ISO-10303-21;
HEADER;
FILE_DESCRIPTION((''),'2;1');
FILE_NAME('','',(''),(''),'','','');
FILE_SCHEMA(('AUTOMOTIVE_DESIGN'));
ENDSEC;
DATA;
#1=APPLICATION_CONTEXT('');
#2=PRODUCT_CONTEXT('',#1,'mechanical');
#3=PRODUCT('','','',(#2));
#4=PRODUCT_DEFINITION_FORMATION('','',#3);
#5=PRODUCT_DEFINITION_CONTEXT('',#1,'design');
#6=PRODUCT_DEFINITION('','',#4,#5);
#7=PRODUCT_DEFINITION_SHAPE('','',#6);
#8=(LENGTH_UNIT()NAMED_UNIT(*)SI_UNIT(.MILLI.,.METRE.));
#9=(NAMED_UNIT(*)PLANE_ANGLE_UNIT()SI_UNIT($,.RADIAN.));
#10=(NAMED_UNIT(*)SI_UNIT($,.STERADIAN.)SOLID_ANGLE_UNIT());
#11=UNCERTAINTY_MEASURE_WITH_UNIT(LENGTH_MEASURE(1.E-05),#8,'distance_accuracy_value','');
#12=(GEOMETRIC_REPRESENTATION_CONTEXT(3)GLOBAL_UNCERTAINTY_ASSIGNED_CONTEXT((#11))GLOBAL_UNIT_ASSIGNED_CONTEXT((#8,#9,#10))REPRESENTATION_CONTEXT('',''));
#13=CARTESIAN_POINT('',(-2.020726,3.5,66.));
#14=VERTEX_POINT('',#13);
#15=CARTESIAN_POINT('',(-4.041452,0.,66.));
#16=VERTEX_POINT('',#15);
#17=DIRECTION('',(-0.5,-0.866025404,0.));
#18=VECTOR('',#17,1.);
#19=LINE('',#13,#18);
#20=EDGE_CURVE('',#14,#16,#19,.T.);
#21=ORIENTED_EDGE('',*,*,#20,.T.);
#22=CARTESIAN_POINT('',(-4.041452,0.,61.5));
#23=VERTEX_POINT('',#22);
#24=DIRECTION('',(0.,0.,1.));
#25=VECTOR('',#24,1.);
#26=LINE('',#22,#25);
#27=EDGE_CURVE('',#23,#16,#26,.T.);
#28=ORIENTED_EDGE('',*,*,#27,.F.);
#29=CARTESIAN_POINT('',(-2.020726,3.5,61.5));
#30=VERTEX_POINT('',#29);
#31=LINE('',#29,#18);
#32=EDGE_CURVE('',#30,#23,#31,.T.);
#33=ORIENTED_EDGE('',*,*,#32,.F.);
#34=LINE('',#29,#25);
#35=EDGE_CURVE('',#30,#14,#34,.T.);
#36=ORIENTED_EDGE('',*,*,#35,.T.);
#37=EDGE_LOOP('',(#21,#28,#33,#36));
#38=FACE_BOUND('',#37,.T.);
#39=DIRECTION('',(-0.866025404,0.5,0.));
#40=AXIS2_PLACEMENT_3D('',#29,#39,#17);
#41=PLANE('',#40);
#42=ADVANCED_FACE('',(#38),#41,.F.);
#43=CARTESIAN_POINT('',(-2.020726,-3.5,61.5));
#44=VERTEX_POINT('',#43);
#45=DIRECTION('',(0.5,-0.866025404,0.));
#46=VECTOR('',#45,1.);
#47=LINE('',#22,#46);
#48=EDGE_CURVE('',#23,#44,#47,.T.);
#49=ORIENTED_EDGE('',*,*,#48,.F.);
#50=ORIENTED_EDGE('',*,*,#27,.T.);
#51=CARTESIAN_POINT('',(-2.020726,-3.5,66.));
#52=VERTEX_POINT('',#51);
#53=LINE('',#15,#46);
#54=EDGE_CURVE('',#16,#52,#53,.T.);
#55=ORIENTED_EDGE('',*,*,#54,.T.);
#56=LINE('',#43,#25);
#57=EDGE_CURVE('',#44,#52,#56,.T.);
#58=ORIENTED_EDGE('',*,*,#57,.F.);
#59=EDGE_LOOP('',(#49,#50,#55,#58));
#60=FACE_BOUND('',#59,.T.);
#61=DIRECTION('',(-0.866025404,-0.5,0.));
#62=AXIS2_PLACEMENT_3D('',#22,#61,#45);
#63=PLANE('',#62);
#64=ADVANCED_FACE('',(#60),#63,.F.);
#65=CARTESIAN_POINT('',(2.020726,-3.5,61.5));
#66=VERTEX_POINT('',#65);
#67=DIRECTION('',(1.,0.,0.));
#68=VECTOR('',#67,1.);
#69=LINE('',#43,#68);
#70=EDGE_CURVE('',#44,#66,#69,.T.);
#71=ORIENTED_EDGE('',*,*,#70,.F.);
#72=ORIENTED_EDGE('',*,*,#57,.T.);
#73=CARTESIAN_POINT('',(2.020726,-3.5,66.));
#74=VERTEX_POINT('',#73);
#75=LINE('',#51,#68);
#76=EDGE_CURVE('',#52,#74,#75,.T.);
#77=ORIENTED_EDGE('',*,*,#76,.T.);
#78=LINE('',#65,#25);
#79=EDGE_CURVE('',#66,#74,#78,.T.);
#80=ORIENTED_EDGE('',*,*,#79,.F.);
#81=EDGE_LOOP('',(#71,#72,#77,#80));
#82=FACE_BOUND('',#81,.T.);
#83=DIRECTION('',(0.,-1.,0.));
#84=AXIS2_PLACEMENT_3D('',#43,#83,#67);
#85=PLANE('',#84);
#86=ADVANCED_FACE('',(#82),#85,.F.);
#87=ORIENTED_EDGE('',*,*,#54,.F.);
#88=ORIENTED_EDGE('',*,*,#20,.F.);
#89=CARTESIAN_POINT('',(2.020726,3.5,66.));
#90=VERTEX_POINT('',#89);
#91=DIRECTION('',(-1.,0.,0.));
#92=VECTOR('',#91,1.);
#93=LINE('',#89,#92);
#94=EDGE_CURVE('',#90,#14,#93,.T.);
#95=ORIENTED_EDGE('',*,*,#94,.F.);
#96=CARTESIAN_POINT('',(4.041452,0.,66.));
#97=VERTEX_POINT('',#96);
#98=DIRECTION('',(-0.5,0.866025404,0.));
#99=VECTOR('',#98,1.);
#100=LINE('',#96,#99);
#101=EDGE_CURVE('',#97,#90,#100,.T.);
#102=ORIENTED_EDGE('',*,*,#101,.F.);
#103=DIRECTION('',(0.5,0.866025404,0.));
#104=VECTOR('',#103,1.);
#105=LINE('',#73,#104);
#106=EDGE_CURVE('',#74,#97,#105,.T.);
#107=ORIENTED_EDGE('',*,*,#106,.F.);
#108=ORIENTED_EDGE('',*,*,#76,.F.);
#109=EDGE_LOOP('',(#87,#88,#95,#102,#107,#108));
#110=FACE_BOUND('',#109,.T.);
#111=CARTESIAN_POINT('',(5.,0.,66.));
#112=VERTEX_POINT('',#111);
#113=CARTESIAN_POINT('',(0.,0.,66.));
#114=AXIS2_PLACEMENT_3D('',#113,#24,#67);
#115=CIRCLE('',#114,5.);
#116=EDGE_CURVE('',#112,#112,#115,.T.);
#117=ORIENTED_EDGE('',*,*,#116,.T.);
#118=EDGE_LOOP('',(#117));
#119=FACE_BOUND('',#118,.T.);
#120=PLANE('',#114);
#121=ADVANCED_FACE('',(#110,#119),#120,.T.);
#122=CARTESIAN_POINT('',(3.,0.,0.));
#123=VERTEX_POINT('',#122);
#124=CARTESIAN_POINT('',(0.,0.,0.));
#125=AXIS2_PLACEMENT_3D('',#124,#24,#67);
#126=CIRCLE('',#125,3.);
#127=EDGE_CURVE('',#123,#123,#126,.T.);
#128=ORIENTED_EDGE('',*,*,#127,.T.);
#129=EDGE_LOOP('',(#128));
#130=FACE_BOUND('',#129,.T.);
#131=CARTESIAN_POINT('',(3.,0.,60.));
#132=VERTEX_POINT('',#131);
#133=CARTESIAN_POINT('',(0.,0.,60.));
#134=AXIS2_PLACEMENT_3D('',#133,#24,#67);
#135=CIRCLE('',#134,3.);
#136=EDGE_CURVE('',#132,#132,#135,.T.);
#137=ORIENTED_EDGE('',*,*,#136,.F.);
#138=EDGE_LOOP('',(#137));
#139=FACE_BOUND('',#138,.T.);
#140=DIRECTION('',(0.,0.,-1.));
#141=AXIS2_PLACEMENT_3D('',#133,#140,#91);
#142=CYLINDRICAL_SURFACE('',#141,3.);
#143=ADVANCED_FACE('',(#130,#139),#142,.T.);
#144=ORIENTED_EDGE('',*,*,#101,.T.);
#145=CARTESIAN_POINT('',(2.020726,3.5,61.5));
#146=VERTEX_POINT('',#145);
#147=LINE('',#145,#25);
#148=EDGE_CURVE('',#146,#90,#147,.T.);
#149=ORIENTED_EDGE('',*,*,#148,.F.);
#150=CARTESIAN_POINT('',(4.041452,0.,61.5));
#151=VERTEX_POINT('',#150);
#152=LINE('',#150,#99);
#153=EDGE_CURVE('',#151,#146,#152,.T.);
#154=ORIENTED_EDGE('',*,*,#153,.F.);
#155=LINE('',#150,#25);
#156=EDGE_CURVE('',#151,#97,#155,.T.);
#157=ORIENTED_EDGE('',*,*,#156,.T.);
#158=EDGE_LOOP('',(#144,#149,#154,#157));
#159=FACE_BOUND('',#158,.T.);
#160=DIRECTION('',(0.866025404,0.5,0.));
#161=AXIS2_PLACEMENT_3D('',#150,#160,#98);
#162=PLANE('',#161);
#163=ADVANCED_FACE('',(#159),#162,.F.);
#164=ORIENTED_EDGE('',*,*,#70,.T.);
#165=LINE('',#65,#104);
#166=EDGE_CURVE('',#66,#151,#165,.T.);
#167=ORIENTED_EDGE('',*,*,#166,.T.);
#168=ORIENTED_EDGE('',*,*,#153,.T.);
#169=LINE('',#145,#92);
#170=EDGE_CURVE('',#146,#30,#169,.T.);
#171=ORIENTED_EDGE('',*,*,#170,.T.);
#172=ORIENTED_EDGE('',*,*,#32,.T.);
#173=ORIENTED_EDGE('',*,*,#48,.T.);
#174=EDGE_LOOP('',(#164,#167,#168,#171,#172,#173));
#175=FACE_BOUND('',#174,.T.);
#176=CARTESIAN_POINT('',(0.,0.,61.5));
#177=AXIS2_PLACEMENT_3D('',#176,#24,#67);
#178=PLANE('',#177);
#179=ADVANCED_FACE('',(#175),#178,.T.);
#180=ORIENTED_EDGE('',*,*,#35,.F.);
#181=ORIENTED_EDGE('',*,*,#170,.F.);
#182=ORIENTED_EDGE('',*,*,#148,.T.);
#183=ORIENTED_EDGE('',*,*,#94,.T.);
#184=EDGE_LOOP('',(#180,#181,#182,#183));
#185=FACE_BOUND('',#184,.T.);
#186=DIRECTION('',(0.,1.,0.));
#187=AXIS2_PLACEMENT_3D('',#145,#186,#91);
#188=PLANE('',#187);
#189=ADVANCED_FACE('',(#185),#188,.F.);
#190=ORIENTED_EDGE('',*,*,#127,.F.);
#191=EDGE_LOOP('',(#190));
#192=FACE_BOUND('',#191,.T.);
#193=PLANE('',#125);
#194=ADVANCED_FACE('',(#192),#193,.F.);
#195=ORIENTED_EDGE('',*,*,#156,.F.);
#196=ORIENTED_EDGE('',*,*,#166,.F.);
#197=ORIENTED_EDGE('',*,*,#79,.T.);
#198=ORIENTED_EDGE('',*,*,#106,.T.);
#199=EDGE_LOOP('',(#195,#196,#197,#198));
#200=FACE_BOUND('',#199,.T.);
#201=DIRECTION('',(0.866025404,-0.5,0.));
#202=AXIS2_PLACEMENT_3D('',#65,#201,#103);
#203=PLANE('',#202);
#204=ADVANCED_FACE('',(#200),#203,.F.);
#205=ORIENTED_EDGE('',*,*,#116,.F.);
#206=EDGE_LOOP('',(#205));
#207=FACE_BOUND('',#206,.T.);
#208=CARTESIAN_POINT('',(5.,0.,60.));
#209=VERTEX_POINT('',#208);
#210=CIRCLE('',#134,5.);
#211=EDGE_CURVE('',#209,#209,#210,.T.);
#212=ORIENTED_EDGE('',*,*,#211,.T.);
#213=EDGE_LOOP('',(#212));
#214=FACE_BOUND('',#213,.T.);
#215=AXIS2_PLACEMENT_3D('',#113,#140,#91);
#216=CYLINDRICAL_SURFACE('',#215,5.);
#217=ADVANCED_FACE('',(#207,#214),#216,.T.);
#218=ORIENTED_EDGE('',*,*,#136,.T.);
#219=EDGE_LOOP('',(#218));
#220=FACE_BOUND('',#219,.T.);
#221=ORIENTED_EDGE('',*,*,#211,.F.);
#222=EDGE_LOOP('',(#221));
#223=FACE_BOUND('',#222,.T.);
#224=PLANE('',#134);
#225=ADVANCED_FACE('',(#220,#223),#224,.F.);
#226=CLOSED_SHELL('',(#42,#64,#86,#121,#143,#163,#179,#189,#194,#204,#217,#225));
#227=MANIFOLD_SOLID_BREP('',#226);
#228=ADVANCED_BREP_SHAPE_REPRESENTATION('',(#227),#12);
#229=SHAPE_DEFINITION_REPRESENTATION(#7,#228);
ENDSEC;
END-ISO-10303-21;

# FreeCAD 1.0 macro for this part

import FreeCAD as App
import Part
import Sketcher

V = App.Vector
Q = App.Units.Quantity


def add_polygon(sketch, points):
    """Adds a closed chain of lines whose ends are joined by coincident constraints."""
    first, n = sketch.GeometryCount, len(points)
    for a, b in zip(points, points[1:] + points[:1]):
        sketch.addGeometry(Part.LineSegment(App.Vector(*a, 0), App.Vector(*b, 0)), False)
    for i in range(n):
        sketch.addConstraint(Sketcher.Constraint("Coincident", first + i, 2, first + (i + 1) % n, 1))

doc = App.newDocument("Part")
body = doc.addObject("PartDesign::Body", "Body")

sketch1 = doc.addObject("Sketcher::SketchObject", "Sketch")
body.addObject(sketch1)
sketch1.AttachmentSupport = (doc.XY_Plane, [""])
sketch1.MapMode = "FlatFace"
sketch1.addGeometry(Part.Circle(V(0, 0, 0), V(0, 0, 1), 3), False)
sketch1.addConstraint([
    Sketcher.Constraint("Coincident", 0, 3, -1, 1),
    Sketcher.Constraint("Diameter", 0, Q("6 mm")),
])
pad1 = doc.addObject("PartDesign::Pad", "Pad")
body.addObject(pad1)
pad1.Profile = sketch1
pad1.Length = 60

sketch2 = doc.addObject("Sketcher::SketchObject", "Sketch001")
body.addObject(sketch2)
sketch2.AttachmentSupport = (doc.XY_Plane, [""])
sketch2.MapMode = "FlatFace"
sketch2.AttachmentOffset = App.Placement(V(0, 0, 60), App.Rotation())
sketch2.addGeometry(Part.Circle(V(0, 0, 0), V(0, 0, 1), 5), False)
sketch2.addConstraint([
    Sketcher.Constraint("Coincident", 0, 3, -1, 1),
    Sketcher.Constraint("Diameter", 0, Q("10 mm")),
])
pad2 = doc.addObject("PartDesign::Pad", "Pad001")
body.addObject(pad2)
pad2.Profile = sketch2
pad2.Length = 6

sketch3 = doc.addObject("Sketcher::SketchObject", "Sketch002")
body.addObject(sketch3)
sketch3.AttachmentSupport = (doc.XY_Plane, [""])
sketch3.MapMode = "FlatFace"
sketch3.AttachmentOffset = App.Placement(V(0, 0, 66), App.Rotation())
add_polygon(sketch3, [(4.041452, 0), (2.020726, 3.5), (-2.020726, 3.5), (-4.041452, 0), (-2.020726, -3.5), (2.020726, -3.5)])
sketch3.addConstraint([
    Sketcher.Constraint("Horizontal", 1),
    Sketcher.Constraint("Horizontal", 4),
    Sketcher.Constraint("Symmetric", 0, 2, 3, 2, -1, 1),
    Sketcher.Constraint("Symmetric", 2, 2, 5, 2, -1, 1),
    Sketcher.Constraint("PointOnObject", 2, 2, -1),
    Sketcher.Constraint("Parallel", 2, 5),
    Sketcher.Constraint("Vertical", 1, 2, 3, 2),
    Sketcher.Constraint("Angle", 0, Q("120 deg")),
    Sketcher.Constraint("DistanceY", 3, 2, 1, 2, Q("7 mm")),
    Sketcher.Constraint("DistanceX", 1, 2, 1, 1, Q("4.041452 mm")),
])
pocket1 = doc.addObject("PartDesign::Pocket", "Pocket")
body.addObject(pocket1)
pocket1.Profile = sketch3
pocket1.Length = 4.5

doc.recompute()
